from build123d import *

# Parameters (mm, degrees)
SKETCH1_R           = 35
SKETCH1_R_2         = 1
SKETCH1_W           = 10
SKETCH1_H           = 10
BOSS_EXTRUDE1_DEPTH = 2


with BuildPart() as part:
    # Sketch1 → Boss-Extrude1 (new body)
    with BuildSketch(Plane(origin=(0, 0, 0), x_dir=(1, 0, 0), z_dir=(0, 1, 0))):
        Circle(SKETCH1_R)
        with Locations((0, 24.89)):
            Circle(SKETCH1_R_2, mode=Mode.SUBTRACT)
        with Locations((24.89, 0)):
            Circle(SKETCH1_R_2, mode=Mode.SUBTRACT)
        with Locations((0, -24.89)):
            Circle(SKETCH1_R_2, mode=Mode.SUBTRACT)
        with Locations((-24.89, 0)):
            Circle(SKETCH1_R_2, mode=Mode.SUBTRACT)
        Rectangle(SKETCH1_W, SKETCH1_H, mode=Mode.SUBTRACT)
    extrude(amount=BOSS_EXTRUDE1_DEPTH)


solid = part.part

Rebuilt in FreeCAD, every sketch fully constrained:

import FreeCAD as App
import Part
import Sketcher

V = App.Vector


def add_polygon(sketch, points):
    """Adds a closed chain of lines whose ends are joined by coincident constraints."""
    first, n = sketch.GeometryCount, len(points)
    for a, b in zip(points, points[1:] + points[:1]):
        sketch.addGeometry(Part.LineSegment(App.Vector(*a, 0), App.Vector(*b, 0)), False)
    for i in range(n):
        sketch.addConstraint(Sketcher.Constraint("Coincident", first + i, 2, first + (i + 1) % n, 1))

doc = App.newDocument("Part")
body = doc.addObject("PartDesign::Body", "Body")

# Sketch on XZ plane
sketch1 = body.newObject("Sketcher::SketchObject", "Sketch")
sketch1.AttachmentSupport = (doc.getObject("XZ_Plane"), [""])
sketch1.MapMode = "FlatFace"
sketch1.addGeometry(Part.Circle(V(0, 0, 0), V(0, 0, 1), 35), False)  # 0
sketch1.addGeometry(Part.Circle(V(0, 24.9, 0), V(0, 0, 1), 1), False)  # 1
sketch1.addGeometry(Part.Circle(V(-24.9, 0, 0), V(0, 0, 1), 1), False)  # 2
add_polygon(sketch1, [(5, 5), (-5, 5), (-5, -5), (5, -5)])  # lines 3-6
sketch1.addGeometry(Part.Circle(V(24.9, 0, 0), V(0, 0, 1), 1), False)  # 7
sketch1.addGeometry(Part.Circle(V(0, -24.9, 0), V(0, 0, 1), 1), False)  # 8
sketch1.addConstraint(Sketcher.Constraint("Horizontal", 3))
sketch1.addConstraint(Sketcher.Constraint("Vertical", 4))
sketch1.addConstraint(Sketcher.Constraint("Horizontal", 5))
sketch1.addConstraint(Sketcher.Constraint("Vertical", 6))
sketch1.addConstraint(Sketcher.Constraint("Coincident", 0, 3, -1, 1))
sketch1.addConstraint(Sketcher.Constraint("Equal", 1, 2))
sketch1.addConstraint(Sketcher.Constraint("Equal", 2, 7))
sketch1.addConstraint(Sketcher.Constraint("Equal", 7, 8))
sketch1.addConstraint(Sketcher.Constraint("Symmetric", 2, 3, 7, 3, -1, 1))
sketch1.addConstraint(Sketcher.Constraint("Symmetric", 1, 3, 8, 3, -1, 1))
sketch1.addConstraint(Sketcher.Constraint("Symmetric", 3, 2, 5, 2, -1, 1))
sketch1.addConstraint(Sketcher.Constraint("PointOnObject", 1, 3, -2))
sketch1.addConstraint(Sketcher.Constraint("PointOnObject", 2, 3, -1))
sketch1.addConstraint(Sketcher.Constraint("Equal", 5, 4))
sketch1.addConstraint(Sketcher.Constraint("Diameter", 0, 70.0))
sketch1.addConstraint(Sketcher.Constraint("Diameter", 1, 2.0))
sketch1.addConstraint(Sketcher.Constraint("DistanceX", 3, 2, 3, 1, 10.0))
sketch1.addConstraint(Sketcher.Constraint("DistanceY", -1, 1, 1, 3, 24.89))
sketch1.addConstraint(Sketcher.Constraint("DistanceX", 2, 3, -1, 1, 24.89))
pad1 = body.newObject("PartDesign::Pad", "Pad")
pad1.Profile = sketch1
pad1.Length = 2
pad1.Reversed = True

doc.recompute()
